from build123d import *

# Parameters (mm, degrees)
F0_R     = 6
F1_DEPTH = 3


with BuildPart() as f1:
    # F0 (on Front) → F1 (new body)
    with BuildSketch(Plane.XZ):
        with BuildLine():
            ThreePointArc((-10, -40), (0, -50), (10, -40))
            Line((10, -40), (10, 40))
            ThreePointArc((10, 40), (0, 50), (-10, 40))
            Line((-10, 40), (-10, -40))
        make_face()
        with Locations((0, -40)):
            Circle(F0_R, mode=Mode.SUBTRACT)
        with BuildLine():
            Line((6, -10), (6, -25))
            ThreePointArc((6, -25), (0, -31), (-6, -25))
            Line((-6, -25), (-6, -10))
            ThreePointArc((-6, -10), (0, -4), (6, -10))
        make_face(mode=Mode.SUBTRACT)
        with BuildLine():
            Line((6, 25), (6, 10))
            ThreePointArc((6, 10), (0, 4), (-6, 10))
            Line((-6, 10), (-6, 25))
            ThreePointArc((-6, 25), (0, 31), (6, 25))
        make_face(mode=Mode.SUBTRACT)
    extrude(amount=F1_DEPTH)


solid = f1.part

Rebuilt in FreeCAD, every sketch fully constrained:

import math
import FreeCAD as App
import Part
import Sketcher
Q = App.Units.Quantity

doc = App.newDocument("Part")
body = doc.addObject("PartDesign::Body", "Body")

# Sketch on XZ plane
sketch1 = doc.addObject("Sketcher::SketchObject", "Sketch")
body.addObject(sketch1)
sketch1.AttachmentSupport = (doc.XZ_Plane, [""])
sketch1.MapMode = "FlatFace"
sketch1.addGeometry(Part.ArcOfCircle(Part.Circle(App.Vector(0, -40, 0), App.Vector(0, 0, 1), 10), math.radians(180), math.radians(360)), False)
sketch1.addGeometry(Part.LineSegment(App.Vector(10, -40, 0), App.Vector(10, 40, 0)), False)
sketch1.addGeometry(Part.ArcOfCircle(Part.Circle(App.Vector(0, 40, 0), App.Vector(0, 0, 1), 10), math.radians(0), math.radians(180)), False)
sketch1.addGeometry(Part.LineSegment(App.Vector(-10, 40, 0), App.Vector(-10, -40, 0)), False)
sketch1.addGeometry(Part.Circle(App.Vector(0, -40, 0), App.Vector(0, 0, 1), 6), False)
sketch1.addGeometry(Part.ArcOfCircle(Part.Circle(App.Vector(0, -10, 0), App.Vector(0, 0, 1), 6), math.radians(0), math.radians(180)), False)
sketch1.addGeometry(Part.LineSegment(App.Vector(6, -10, 0), App.Vector(6, -25, 0)), False)
sketch1.addGeometry(Part.ArcOfCircle(Part.Circle(App.Vector(0, -25, 0), App.Vector(0, 0, 1), 6), math.radians(180), math.radians(360)), False)
sketch1.addGeometry(Part.LineSegment(App.Vector(-6, -25, 0), App.Vector(-6, -10, 0)), False)
sketch1.addGeometry(Part.ArcOfCircle(Part.Circle(App.Vector(0, 25, 0), App.Vector(0, 0, 1), 6), math.radians(0), math.radians(180)), False)
sketch1.addGeometry(Part.LineSegment(App.Vector(6, 25, 0), App.Vector(6, 10, 0)), False)
sketch1.addGeometry(Part.ArcOfCircle(Part.Circle(App.Vector(0, 10, 0), App.Vector(0, 0, 1), 6), math.radians(180), math.radians(360)), False)
sketch1.addGeometry(Part.LineSegment(App.Vector(-6, 10, 0), App.Vector(-6, 25, 0)), False)
sketch1.addConstraint(Sketcher.Constraint("Tangent", 0, 2, 1, 1))
sketch1.addConstraint(Sketcher.Constraint("Tangent", 1, 2, 2, 1))
sketch1.addConstraint(Sketcher.Constraint("Tangent", 2, 2, 3, 1))
sketch1.addConstraint(Sketcher.Constraint("Tangent", 3, 2, 0, 1))
sketch1.addConstraint(Sketcher.Constraint("Tangent", 5, 1, 6, 1))
sketch1.addConstraint(Sketcher.Constraint("Tangent", 6, 2, 7, 2))
sketch1.addConstraint(Sketcher.Constraint("Tangent", 7, 1, 8, 1))
sketch1.addConstraint(Sketcher.Constraint("Tangent", 8, 2, 5, 2))
sketch1.addConstraint(Sketcher.Constraint("Tangent", 9, 1, 10, 1))
sketch1.addConstraint(Sketcher.Constraint("Tangent", 10, 2, 11, 2))
sketch1.addConstraint(Sketcher.Constraint("Tangent", 11, 1, 12, 1))
sketch1.addConstraint(Sketcher.Constraint("Tangent", 12, 2, 9, 2))
sketch1.addConstraint(Sketcher.Constraint("Vertical", 1))
sketch1.addConstraint(Sketcher.Constraint("Vertical", 3))
sketch1.addConstraint(Sketcher.Constraint("Vertical", 6))
sketch1.addConstraint(Sketcher.Constraint("Vertical", 8))
sketch1.addConstraint(Sketcher.Constraint("Vertical", 10))
sketch1.addConstraint(Sketcher.Constraint("Vertical", 12))
sketch1.addConstraint(Sketcher.Constraint("Coincident", 4, 3, 0, 3))
sketch1.addConstraint(Sketcher.Constraint("Equal", 4, 5))
sketch1.addConstraint(Sketcher.Constraint("Equal", 7, 9))
sketch1.addConstraint(Sketcher.Constraint("Symmetric", 0, 3, 2, 3, -1, 1))
sketch1.addConstraint(Sketcher.Constraint("Symmetric", 7, 3, 9, 3, -1, 1))
sketch1.addConstraint(Sketcher.Constraint("Symmetric", 5, 3, 11, 3, -1))
sketch1.addConstraint(Sketcher.Constraint("Diameter", 4, Q("12 mm")))
sketch1.addConstraint(Sketcher.Constraint("Radius", 0, Q("10 mm")))
sketch1.addConstraint(Sketcher.Constraint("DistanceY", 1, 1, 1, 2, Q("80 mm")))
sketch1.addConstraint(Sketcher.Constraint("DistanceY", 6, 2, 6, 1, Q("15 mm")))
sketch1.addConstraint(Sketcher.Constraint("DistanceY", 5, 3, -1, 1, Q("10 mm")))
pad1 = doc.addObject("PartDesign::Pad", "Pad")
body.addObject(pad1)
pad1.Profile = sketch1
pad1.Length = 3

doc.recompute()
